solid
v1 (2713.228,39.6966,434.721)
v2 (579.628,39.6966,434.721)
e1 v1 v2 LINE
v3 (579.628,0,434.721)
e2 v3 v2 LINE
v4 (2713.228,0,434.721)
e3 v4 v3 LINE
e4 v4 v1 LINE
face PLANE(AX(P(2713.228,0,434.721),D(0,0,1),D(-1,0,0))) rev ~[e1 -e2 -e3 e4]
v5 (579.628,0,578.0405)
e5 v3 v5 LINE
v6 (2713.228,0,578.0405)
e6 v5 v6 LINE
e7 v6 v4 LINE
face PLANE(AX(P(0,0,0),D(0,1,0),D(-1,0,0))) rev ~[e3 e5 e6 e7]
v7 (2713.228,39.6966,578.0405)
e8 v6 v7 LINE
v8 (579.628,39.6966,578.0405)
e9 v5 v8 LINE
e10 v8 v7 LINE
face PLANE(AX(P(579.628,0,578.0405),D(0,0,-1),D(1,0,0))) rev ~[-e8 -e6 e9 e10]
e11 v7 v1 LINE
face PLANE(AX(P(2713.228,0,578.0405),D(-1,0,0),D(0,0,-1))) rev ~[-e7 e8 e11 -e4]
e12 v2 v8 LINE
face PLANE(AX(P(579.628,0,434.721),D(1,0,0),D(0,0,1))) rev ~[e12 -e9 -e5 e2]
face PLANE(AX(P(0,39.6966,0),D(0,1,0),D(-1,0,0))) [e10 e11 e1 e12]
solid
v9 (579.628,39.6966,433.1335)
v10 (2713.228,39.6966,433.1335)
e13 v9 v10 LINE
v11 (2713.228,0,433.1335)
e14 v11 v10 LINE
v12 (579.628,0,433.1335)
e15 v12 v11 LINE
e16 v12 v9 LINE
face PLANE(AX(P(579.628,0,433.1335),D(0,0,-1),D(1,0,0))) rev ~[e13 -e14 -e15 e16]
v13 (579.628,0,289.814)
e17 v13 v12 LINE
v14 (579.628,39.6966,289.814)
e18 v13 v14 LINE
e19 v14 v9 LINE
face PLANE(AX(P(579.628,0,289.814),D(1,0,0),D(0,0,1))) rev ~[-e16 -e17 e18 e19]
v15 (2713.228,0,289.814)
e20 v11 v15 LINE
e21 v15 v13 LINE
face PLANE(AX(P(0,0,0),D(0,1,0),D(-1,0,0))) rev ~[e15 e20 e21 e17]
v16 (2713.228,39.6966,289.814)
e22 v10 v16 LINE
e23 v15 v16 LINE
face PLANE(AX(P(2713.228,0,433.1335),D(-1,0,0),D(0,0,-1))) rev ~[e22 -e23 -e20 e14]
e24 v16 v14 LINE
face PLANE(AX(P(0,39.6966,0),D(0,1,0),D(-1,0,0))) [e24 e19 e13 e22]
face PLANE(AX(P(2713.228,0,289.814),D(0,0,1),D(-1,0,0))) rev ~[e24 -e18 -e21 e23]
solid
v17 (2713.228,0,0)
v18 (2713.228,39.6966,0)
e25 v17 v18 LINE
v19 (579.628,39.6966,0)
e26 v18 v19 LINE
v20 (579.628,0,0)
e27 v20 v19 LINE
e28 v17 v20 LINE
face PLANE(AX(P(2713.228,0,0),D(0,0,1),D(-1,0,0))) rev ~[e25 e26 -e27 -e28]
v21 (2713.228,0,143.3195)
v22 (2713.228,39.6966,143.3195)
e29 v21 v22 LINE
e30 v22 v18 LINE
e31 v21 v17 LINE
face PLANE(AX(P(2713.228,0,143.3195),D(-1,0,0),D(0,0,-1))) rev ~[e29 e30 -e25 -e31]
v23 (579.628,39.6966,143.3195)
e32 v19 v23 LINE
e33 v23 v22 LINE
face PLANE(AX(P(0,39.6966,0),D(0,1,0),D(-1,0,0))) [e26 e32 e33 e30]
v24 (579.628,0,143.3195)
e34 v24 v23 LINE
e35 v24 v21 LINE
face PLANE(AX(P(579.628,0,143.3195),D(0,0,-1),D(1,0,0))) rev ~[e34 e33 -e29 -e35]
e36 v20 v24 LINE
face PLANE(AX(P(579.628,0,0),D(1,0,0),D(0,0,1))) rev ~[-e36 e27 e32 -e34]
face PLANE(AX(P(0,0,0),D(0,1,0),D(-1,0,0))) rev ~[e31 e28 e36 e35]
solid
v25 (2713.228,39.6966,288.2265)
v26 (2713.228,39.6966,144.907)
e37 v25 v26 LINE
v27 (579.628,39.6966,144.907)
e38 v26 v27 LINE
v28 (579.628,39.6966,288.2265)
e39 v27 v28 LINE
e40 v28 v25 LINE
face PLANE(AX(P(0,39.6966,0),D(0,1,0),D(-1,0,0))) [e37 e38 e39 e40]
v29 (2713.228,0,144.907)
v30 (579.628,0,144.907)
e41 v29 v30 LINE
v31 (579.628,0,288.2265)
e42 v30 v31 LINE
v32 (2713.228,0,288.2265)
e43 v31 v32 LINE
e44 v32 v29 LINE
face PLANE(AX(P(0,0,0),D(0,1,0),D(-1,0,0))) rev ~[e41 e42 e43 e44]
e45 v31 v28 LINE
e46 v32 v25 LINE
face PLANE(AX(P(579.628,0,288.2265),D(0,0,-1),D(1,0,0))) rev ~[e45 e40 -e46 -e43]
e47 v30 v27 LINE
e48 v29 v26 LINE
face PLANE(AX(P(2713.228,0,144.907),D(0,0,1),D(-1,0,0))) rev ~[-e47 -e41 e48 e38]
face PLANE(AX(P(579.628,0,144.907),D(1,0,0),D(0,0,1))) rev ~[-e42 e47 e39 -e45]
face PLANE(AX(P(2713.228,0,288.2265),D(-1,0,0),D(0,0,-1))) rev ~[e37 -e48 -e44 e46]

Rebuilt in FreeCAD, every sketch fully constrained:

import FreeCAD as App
import Part
import Sketcher

V = App.Vector
Q = App.Units.Quantity

doc = App.newDocument("Part")
body = doc.addObject("PartDesign::Body", "Body")
body.AllowCompound = True

# Sketch on XZ plane
sketch1 = doc.addObject("Sketcher::SketchObject", "Sketch")
body.addObject(sketch1)
sketch1.AttachmentSupport = (doc.XZ_Plane, [""])
sketch1.MapMode = "FlatFace"
sketch1.addGeometry(Part.LineSegment(V(2713, 143, 0), V(2713, 0, 0)), False)
sketch1.addGeometry(Part.LineSegment(V(2713, 0, 0), V(580, 0, 0)), False)
sketch1.addGeometry(Part.LineSegment(V(580, 0, 0), V(580, 143, 0)), False)
sketch1.addGeometry(Part.LineSegment(V(580, 143, 0), V(2713, 143, 0)), False)
sketch1.addGeometry(Part.LineSegment(V(2713, 288, 0), V(2713, 145, 0)), False)
sketch1.addGeometry(Part.LineSegment(V(2713, 145, 0), V(580, 145, 0)), False)
sketch1.addGeometry(Part.LineSegment(V(580, 145, 0), V(580, 288, 0)), False)
sketch1.addGeometry(Part.LineSegment(V(580, 288, 0), V(2713, 288, 0)), False)
sketch1.addGeometry(Part.LineSegment(V(2713, 433, 0), V(2713, 290, 0)), False)
sketch1.addGeometry(Part.LineSegment(V(2713, 290, 0), V(580, 290, 0)), False)
sketch1.addGeometry(Part.LineSegment(V(580, 290, 0), V(580, 433, 0)), False)
sketch1.addGeometry(Part.LineSegment(V(580, 433, 0), V(2713, 433, 0)), False)
sketch1.addGeometry(Part.LineSegment(V(2713, 578, 0), V(2713, 435, 0)), False)
sketch1.addGeometry(Part.LineSegment(V(2713, 435, 0), V(580, 435, 0)), False)
sketch1.addGeometry(Part.LineSegment(V(580, 435, 0), V(580, 578, 0)), False)
sketch1.addGeometry(Part.LineSegment(V(580, 578, 0), V(2713, 578, 0)), False)
sketch1.addConstraint(Sketcher.Constraint("Coincident", 0, 2, 1, 1))
sketch1.addConstraint(Sketcher.Constraint("Coincident", 1, 2, 2, 1))
sketch1.addConstraint(Sketcher.Constraint("Coincident", 2, 2, 3, 1))
sketch1.addConstraint(Sketcher.Constraint("Coincident", 3, 2, 0, 1))
sketch1.addConstraint(Sketcher.Constraint("Coincident", 4, 2, 5, 1))
sketch1.addConstraint(Sketcher.Constraint("Coincident", 5, 2, 6, 1))
sketch1.addConstraint(Sketcher.Constraint("Coincident", 6, 2, 7, 1))
sketch1.addConstraint(Sketcher.Constraint("Coincident", 7, 2, 4, 1))
sketch1.addConstraint(Sketcher.Constraint("Coincident", 8, 2, 9, 1))
sketch1.addConstraint(Sketcher.Constraint("Coincident", 9, 2, 10, 1))
sketch1.addConstraint(Sketcher.Constraint("Coincident", 10, 2, 11, 1))
sketch1.addConstraint(Sketcher.Constraint("Coincident", 11, 2, 8, 1))
sketch1.addConstraint(Sketcher.Constraint("Coincident", 12, 2, 13, 1))
sketch1.addConstraint(Sketcher.Constraint("Coincident", 13, 2, 14, 1))
sketch1.addConstraint(Sketcher.Constraint("Coincident", 14, 2, 15, 1))
sketch1.addConstraint(Sketcher.Constraint("Coincident", 15, 2, 12, 1))
sketch1.addConstraint(Sketcher.Constraint("Vertical", 0))
sketch1.addConstraint(Sketcher.Constraint("Horizontal", 1))
sketch1.addConstraint(Sketcher.Constraint("Vertical", 2))
sketch1.addConstraint(Sketcher.Constraint("Horizontal", 3))
sketch1.addConstraint(Sketcher.Constraint("Vertical", 4))
sketch1.addConstraint(Sketcher.Constraint("Horizontal", 5))
sketch1.addConstraint(Sketcher.Constraint("Vertical", 6))
sketch1.addConstraint(Sketcher.Constraint("Horizontal", 7))
sketch1.addConstraint(Sketcher.Constraint("Vertical", 8))
sketch1.addConstraint(Sketcher.Constraint("Horizontal", 9))
sketch1.addConstraint(Sketcher.Constraint("Vertical", 10))
sketch1.addConstraint(Sketcher.Constraint("Horizontal", 11))
sketch1.addConstraint(Sketcher.Constraint("Vertical", 12))
sketch1.addConstraint(Sketcher.Constraint("Horizontal", 13))
sketch1.addConstraint(Sketcher.Constraint("Vertical", 14))
sketch1.addConstraint(Sketcher.Constraint("Horizontal", 15))
sketch1.addConstraint(Sketcher.Constraint("PointOnObject", 0, 2, -1))
sketch1.addConstraint(Sketcher.Constraint("Vertical", 3, 2, 4, 2))
sketch1.addConstraint(Sketcher.Constraint("Vertical", 2, 2, 5, 2))
sketch1.addConstraint(Sketcher.Constraint("Vertical", 7, 2, 8, 2))
sketch1.addConstraint(Sketcher.Constraint("Vertical", 6, 2, 9, 2))
sketch1.addConstraint(Sketcher.Constraint("Vertical", 11, 2, 12, 2))
sketch1.addConstraint(Sketcher.Constraint("Vertical", 10, 2, 13, 2))
sketch1.addConstraint(Sketcher.Constraint("Equal", 2, 4))
sketch1.addConstraint(Sketcher.Constraint("Equal", 6, 8))
sketch1.addConstraint(Sketcher.Constraint("Equal", 10, 12))
sketch1.addConstraint(Sketcher.Constraint("DistanceX", 1, 2, 1, 1, Q("84 in")))
sketch1.addConstraint(Sketcher.Constraint("DistanceX", -1, 1, 1, 2, Q("22.82 in")))
sketch1.addConstraint(Sketcher.Constraint("DistanceY", 0, 2, 0, 1, Q("5.6425 in")))
sketch1.addConstraint(Sketcher.Constraint("DistanceY", 3, 2, 4, 2, Q("0.0625 in")))
sketch1.addConstraint(Sketcher.Constraint("DistanceY", 7, 2, 8, 2, Q("0.0625 in")))
sketch1.addConstraint(Sketcher.Constraint("DistanceY", 11, 2, 12, 2, Q("0.0625 in")))
pad1 = doc.addObject("PartDesign::Pad", "Pad")
body.addObject(pad1)
pad1.Profile = sketch1
pad1.Length = 39.6966
pad1.Reversed = True

doc.recompute()
